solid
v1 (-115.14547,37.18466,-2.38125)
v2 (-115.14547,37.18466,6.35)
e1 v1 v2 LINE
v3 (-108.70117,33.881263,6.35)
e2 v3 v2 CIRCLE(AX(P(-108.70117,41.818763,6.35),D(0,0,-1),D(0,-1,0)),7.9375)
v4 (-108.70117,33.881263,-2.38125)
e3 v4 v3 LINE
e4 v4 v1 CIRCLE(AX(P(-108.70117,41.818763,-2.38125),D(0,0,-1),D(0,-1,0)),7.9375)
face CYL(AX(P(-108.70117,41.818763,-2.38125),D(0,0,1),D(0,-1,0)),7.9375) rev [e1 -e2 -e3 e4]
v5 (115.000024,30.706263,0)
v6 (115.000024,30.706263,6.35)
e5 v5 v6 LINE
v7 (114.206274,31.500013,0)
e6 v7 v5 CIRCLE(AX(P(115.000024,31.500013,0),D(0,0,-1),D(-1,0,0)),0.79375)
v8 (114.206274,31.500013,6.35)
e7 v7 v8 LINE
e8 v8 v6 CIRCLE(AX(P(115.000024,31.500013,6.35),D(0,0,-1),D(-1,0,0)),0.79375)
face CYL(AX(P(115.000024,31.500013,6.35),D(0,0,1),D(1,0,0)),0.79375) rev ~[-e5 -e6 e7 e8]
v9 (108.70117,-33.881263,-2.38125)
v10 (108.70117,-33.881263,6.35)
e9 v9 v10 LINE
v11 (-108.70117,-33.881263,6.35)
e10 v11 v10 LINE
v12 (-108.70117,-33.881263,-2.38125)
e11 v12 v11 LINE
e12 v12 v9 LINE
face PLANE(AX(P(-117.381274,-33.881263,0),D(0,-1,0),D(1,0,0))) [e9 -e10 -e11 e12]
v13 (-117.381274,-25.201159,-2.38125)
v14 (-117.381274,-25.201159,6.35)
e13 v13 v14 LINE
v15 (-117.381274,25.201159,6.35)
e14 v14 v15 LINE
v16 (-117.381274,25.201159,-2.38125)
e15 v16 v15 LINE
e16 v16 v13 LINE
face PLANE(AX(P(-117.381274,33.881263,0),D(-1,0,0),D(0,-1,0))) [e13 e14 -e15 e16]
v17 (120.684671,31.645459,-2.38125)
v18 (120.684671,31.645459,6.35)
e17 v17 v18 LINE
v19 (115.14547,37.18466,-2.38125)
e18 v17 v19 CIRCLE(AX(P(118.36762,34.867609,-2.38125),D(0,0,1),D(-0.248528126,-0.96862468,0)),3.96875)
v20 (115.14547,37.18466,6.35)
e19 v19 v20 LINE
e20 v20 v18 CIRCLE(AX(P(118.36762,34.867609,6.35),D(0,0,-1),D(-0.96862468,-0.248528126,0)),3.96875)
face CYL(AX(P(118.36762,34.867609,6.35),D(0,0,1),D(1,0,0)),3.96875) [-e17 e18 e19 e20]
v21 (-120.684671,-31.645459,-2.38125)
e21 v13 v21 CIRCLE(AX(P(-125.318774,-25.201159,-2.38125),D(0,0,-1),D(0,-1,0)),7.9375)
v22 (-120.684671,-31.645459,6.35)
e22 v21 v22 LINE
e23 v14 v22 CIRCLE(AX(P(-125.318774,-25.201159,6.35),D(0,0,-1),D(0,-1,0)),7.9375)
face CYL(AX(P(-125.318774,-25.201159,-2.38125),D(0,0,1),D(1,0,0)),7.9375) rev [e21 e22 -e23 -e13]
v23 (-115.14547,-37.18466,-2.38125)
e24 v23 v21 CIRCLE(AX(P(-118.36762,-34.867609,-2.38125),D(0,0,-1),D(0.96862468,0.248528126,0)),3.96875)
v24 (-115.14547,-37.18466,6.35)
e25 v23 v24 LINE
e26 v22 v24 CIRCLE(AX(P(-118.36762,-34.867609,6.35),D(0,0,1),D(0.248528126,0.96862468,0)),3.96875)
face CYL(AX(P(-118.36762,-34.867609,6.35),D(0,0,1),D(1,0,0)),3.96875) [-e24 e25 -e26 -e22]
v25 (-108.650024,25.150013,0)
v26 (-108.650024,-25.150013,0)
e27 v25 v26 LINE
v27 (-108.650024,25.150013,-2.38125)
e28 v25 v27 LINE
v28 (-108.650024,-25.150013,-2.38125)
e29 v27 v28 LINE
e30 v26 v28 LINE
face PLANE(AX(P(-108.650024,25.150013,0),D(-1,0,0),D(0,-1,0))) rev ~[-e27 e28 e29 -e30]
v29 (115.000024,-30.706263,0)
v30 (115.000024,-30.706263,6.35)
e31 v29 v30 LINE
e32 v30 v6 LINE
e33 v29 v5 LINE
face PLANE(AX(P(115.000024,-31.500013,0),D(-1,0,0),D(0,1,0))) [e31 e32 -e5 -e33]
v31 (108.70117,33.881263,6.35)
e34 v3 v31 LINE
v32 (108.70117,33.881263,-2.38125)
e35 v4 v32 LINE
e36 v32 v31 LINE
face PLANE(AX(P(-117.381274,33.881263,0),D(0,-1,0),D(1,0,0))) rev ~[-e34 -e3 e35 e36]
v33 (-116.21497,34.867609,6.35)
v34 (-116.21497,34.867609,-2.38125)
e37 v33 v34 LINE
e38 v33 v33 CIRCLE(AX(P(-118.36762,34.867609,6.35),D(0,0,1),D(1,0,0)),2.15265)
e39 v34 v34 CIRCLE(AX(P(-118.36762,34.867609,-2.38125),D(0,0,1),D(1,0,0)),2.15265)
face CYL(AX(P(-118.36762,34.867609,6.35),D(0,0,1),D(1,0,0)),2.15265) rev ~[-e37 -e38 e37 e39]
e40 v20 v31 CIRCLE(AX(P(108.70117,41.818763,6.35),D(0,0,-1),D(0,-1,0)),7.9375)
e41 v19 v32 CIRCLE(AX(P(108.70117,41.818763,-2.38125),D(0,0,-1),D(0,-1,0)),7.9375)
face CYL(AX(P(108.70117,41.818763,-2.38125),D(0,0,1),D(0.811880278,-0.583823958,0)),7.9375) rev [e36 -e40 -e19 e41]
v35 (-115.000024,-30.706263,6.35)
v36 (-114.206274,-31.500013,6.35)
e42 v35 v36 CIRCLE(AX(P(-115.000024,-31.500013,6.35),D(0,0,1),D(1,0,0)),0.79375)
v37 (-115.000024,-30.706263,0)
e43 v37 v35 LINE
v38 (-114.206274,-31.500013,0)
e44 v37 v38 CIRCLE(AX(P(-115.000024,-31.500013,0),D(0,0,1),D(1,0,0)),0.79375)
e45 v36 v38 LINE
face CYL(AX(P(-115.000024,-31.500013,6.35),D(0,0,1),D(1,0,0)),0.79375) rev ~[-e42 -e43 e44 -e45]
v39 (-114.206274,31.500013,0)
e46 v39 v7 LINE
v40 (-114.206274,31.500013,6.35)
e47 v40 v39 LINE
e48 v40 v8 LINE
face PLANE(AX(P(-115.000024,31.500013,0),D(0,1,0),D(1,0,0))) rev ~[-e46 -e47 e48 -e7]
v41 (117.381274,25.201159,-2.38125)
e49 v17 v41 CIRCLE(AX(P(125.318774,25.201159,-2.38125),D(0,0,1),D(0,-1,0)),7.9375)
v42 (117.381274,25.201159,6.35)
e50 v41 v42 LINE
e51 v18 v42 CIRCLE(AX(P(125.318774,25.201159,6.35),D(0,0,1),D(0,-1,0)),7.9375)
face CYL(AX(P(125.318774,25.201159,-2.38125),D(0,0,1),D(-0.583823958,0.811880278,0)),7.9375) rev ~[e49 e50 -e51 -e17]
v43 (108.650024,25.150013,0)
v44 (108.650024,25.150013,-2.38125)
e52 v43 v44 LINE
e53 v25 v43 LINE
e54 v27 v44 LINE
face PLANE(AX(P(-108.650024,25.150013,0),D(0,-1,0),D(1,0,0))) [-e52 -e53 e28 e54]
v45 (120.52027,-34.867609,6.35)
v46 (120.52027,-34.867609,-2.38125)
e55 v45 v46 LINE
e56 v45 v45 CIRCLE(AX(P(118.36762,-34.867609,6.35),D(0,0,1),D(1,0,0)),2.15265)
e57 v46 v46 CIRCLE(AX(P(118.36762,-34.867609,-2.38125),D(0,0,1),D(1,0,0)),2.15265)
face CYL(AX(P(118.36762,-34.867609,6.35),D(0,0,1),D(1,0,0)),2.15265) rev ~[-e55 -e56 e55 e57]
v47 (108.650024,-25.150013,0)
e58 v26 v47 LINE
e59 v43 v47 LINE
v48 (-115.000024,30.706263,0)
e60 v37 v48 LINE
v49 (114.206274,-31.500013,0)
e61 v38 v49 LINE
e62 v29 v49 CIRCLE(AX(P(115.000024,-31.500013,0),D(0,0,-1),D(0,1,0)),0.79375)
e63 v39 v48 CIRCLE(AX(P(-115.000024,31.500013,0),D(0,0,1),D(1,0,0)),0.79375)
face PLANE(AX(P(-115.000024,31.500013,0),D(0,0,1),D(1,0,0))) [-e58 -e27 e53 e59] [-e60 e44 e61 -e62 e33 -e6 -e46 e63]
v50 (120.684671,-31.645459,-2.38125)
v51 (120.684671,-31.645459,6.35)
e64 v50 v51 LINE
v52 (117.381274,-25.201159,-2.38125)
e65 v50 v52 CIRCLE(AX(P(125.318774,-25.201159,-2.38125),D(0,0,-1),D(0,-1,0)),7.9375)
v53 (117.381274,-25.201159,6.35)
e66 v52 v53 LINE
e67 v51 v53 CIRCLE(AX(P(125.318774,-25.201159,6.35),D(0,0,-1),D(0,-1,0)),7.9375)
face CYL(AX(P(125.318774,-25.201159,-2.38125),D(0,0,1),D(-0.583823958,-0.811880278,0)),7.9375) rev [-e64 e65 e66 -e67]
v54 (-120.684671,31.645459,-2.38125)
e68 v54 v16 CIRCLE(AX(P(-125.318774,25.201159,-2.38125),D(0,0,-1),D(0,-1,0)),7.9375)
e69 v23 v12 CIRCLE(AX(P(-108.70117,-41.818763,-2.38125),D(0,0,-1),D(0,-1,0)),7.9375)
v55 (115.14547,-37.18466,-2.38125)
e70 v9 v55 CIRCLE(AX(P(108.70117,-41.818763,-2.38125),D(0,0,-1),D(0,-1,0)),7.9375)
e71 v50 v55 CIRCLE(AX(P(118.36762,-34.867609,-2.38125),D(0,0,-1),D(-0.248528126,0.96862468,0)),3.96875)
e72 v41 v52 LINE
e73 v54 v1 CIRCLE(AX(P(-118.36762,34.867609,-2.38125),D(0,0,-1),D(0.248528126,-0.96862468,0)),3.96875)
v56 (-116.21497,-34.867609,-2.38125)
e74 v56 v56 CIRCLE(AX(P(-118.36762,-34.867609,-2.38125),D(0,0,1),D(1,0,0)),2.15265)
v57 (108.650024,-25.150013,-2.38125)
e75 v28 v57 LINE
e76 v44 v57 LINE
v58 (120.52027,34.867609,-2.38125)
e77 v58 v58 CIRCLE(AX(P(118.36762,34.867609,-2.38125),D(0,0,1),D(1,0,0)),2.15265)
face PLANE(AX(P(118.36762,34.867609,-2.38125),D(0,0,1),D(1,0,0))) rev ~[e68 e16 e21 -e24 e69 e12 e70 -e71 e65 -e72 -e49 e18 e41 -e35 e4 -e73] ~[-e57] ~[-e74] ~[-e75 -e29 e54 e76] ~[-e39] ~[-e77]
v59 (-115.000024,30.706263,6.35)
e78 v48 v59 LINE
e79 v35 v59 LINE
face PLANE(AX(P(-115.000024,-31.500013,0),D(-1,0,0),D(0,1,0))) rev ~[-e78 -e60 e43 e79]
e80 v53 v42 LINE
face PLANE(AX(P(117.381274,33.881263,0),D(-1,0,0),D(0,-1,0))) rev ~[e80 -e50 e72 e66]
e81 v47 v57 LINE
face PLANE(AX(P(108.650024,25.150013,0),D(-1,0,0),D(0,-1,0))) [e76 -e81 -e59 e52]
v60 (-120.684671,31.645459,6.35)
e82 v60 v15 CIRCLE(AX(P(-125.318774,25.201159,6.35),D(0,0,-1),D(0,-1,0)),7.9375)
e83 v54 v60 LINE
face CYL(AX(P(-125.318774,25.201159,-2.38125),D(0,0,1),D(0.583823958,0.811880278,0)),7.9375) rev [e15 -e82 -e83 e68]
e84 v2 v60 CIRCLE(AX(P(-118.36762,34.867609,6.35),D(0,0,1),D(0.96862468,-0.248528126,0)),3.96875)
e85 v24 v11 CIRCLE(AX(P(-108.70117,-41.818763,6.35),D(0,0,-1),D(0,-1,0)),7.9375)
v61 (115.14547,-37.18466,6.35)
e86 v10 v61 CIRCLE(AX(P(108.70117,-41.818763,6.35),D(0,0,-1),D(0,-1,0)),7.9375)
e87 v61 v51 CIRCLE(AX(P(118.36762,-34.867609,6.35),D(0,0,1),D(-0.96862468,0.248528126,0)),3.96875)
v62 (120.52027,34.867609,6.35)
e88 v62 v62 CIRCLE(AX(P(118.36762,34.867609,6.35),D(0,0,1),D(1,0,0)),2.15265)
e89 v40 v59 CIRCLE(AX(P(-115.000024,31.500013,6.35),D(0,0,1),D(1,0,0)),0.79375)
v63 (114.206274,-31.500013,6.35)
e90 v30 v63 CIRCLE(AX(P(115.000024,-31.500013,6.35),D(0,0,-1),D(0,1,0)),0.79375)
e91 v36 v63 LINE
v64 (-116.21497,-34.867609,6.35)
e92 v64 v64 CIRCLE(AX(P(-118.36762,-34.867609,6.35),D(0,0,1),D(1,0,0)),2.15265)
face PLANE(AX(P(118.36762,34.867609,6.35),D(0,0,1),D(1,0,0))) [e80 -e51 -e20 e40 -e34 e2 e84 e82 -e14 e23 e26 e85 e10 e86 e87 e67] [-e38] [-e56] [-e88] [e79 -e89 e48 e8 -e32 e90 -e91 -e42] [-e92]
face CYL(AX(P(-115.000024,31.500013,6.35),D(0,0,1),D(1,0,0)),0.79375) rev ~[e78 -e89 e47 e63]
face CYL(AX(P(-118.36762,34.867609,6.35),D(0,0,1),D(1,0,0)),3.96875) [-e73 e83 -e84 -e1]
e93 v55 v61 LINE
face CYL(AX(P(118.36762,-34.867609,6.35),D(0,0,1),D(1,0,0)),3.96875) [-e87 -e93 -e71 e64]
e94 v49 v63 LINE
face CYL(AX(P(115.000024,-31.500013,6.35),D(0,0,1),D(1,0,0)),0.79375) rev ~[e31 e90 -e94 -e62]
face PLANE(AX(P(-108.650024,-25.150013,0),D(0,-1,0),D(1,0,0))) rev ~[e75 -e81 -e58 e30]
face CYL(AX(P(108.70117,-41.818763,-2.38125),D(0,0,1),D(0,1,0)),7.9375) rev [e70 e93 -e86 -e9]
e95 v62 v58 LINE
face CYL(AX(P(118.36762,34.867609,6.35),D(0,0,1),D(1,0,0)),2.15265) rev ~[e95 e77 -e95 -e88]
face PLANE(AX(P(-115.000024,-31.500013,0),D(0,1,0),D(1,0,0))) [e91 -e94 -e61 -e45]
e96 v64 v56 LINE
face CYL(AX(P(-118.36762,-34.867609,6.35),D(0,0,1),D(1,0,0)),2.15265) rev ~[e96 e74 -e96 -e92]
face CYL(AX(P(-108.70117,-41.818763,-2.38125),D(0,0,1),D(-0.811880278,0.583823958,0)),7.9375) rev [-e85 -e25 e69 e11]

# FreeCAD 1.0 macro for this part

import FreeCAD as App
import Part
import Sketcher
Q = App.Units.Quantity


def edges_at(feature, points):
    """Names of the edges that pass closest to the given points."""
    edges = feature.Shape.Edges
    near = lambda p: min(range(len(edges)), key=lambda i: edges[i].distToShape(Part.Vertex(*p))[0])
    return sorted({f"Edge{near(p) + 1}" for p in points})

doc = App.newDocument("Part")
body = doc.addObject("PartDesign::Body", "Body")

# Sketch on XY plane
sketch1 = body.newObject("Sketcher::SketchObject", "Sketch")
sketch1.AttachmentSupport = (doc.getObject("XY_Plane"), [""])
sketch1.MapMode = "FlatFace"
sketch1.addGeometry([
    Part.LineSegment(App.Vector(-117, 34, 0), App.Vector(-117, -34, 0)),  # 0
    Part.LineSegment(App.Vector(-117, -34, 0), App.Vector(117, -34, 0)),  # 1
    Part.LineSegment(App.Vector(117, -34, 0), App.Vector(117, 34, 0)),  # 2
    Part.LineSegment(App.Vector(117, 34, 0), App.Vector(-117, 34, 0)),  # 3
    Part.LineSegment(App.Vector(115, -32, 0), App.Vector(-115, -32, 0)),  # 4
    Part.LineSegment(App.Vector(-115, -32, 0), App.Vector(-115, 32, 0)),  # 5
    Part.LineSegment(App.Vector(-115, 32, 0), App.Vector(115, 32, 0)),  # 6
    Part.LineSegment(App.Vector(115, 32, 0), App.Vector(115, -32, 0)),  # 7
], False)
sketch1.addConstraint([
    Sketcher.Constraint("Coincident", 0, 2, 1, 1),
    Sketcher.Constraint("Coincident", 1, 2, 2, 1),
    Sketcher.Constraint("Coincident", 2, 2, 3, 1),
    Sketcher.Constraint("Coincident", 3, 2, 0, 1),
    Sketcher.Constraint("Coincident", 4, 2, 5, 1),
    Sketcher.Constraint("Coincident", 5, 2, 6, 1),
    Sketcher.Constraint("Coincident", 6, 2, 7, 1),
    Sketcher.Constraint("Coincident", 7, 2, 4, 1),
    Sketcher.Constraint("Vertical", 0),
    Sketcher.Constraint("Horizontal", 1),
    Sketcher.Constraint("Vertical", 2),
    Sketcher.Constraint("Horizontal", 3),
    Sketcher.Constraint("Horizontal", 4),
    Sketcher.Constraint("Vertical", 5),
    Sketcher.Constraint("Horizontal", 6),
    Sketcher.Constraint("Vertical", 7),
    Sketcher.Constraint("Symmetric", 0, 2, 2, 2, -1, 1),
    Sketcher.Constraint("Symmetric", 4, 2, 6, 2, -1, 1),
    Sketcher.Constraint("DistanceX", 0, 2, 4, 2, Q("0.09375 in")),
    Sketcher.Constraint("DistanceY", 0, 2, 4, 2, Q("0.09375 in")),
    Sketcher.Constraint("DistanceX", 1, 1, 1, 2, Q("234.762548 mm")),
    Sketcher.Constraint("DistanceY", 0, 2, 0, 1, Q("67.762526 mm")),
])
pad1 = body.newObject("PartDesign::Pad", "Pad")
pad1.Profile = sketch1
pad1.Length = Q("0.25 in")

# Sketch on XY plane
sketch2 = body.newObject("Sketcher::SketchObject", "Sketch001")
sketch2.AttachmentSupport = (doc.getObject("XY_Plane"), [""])
sketch2.MapMode = "FlatFace"
sketch2.addGeometry([
    Part.LineSegment(App.Vector(-117, -34, 0), App.Vector(-117, 34, 0)),  # 0
    Part.LineSegment(App.Vector(-117, 34, 0), App.Vector(117, 34, 0)),  # 1
    Part.LineSegment(App.Vector(117, 34, 0), App.Vector(117, -34, 0)),  # 2
    Part.LineSegment(App.Vector(117, -34, 0), App.Vector(-117, -34, 0)),  # 3
    Part.LineSegment(App.Vector(109, 25, 0), App.Vector(-109, 25, 0)),  # 4
    Part.LineSegment(App.Vector(-109, 25, 0), App.Vector(-109, -25, 0)),  # 5
    Part.LineSegment(App.Vector(-109, -25, 0), App.Vector(109, -25, 0)),  # 6
    Part.LineSegment(App.Vector(109, -25, 0), App.Vector(109, 25, 0)),  # 7
], False)
sketch2.addConstraint([
    Sketcher.Constraint("Coincident", 0, 2, 1, 1),
    Sketcher.Constraint("Coincident", 1, 2, 2, 1),
    Sketcher.Constraint("Coincident", 2, 2, 3, 1),
    Sketcher.Constraint("Coincident", 3, 2, 0, 1),
    Sketcher.Constraint("Coincident", 4, 2, 5, 1),
    Sketcher.Constraint("Coincident", 5, 2, 6, 1),
    Sketcher.Constraint("Coincident", 6, 2, 7, 1),
    Sketcher.Constraint("Coincident", 7, 2, 4, 1),
    Sketcher.Constraint("Vertical", 0),
    Sketcher.Constraint("Horizontal", 1),
    Sketcher.Constraint("Vertical", 2),
    Sketcher.Constraint("Horizontal", 3),
    Sketcher.Constraint("Horizontal", 4),
    Sketcher.Constraint("Vertical", 5),
    Sketcher.Constraint("Horizontal", 6),
    Sketcher.Constraint("Vertical", 7),
    Sketcher.Constraint("Symmetric", 0, 2, 2, 2, -1, 1),
    Sketcher.Constraint("Symmetric", 4, 2, 6, 2, -1, 1),
    Sketcher.Constraint("DistanceX", 0, 2, 4, 2, Q("0.34375 in")),
    Sketcher.Constraint("DistanceY", 4, 2, 0, 2, Q("0.34375 in")),
    Sketcher.Constraint("DistanceX", 1, 1, 1, 2, Q("234.762548 mm")),
    Sketcher.Constraint("DistanceY", 0, 1, 0, 2, Q("67.762526 mm")),
])
pad2 = body.newObject("PartDesign::Pad", "Pad001")
pad2.Profile = sketch2
pad2.Length = Q("0.09375 in")
pad2.Reversed = True

# Sketch on XY plane
sketch3 = body.newObject("Sketcher::SketchObject", "Sketch002")
sketch3.AttachmentSupport = (doc.getObject("XY_Plane"), [""])
sketch3.MapMode = "FlatFace"
sketch3.AttachmentOffset = App.Placement(App.Vector(0, 0, 0.25 * 25.4), App.Rotation())
sketch3.addGeometry([
    Part.Circle(App.Vector(118.4, 34.9, 0), App.Vector(0, 0, 1), 4),
    Part.Circle(App.Vector(118.4, -34.9, 0), App.Vector(0, 0, 1), 4),
    Part.Circle(App.Vector(-118.4, -34.9, 0), App.Vector(0, 0, 1), 4),
    Part.Circle(App.Vector(-118.4, 34.9, 0), App.Vector(0, 0, 1), 4),
], False)
sketch3.addConstraint([
    Sketcher.Constraint("Equal", 0, 1),
    Sketcher.Constraint("Equal", 1, 2),
    Sketcher.Constraint("Equal", 2, 3),
    Sketcher.Constraint("Symmetric", 0, 3, 2, 3, -1, 1),
    Sketcher.Constraint("Symmetric", 1, 3, 3, 3, -1, 1),
    Sketcher.Constraint("Symmetric", 1, 3, 2, 3, -2),
    Sketcher.Constraint("Diameter", 0, Q("0.3125 in")),
    Sketcher.Constraint("DistanceX", -1, 1, 0, 3, Q("118.36762 mm")),
    Sketcher.Constraint("DistanceY", -1, 1, 0, 3, Q("34.867609 mm")),
])
pad3 = body.newObject("PartDesign::Pad", "Pad002")
pad3.Profile = sketch3
pad3.Length = Q("0.34375 in")
pad3.Reversed = True
doc.recompute()

fillet = body.newObject("PartDesign::Fillet", "Fillet")
fillet.Base = (pad3, edges_at(pad3, [
    (114.523, 33.881, 1.984),
    (117.381, 31.023, 1.984),
    (117.381, -31.023, 1.984),
    (114.523, -33.881, 1.984),
    (-117.381, -31.023, 1.984),
    (-114.523, -33.881, 1.984),
    (-114.523, 33.881, 1.984),
    (-117.381, 31.023, 1.984),
]))
fillet.Radius = Q("0.3125 in")

# Sketch on XY plane
sketch4 = body.newObject("Sketcher::SketchObject", "Sketch003")
sketch4.AttachmentSupport = (doc.getObject("XY_Plane"), [""])
sketch4.MapMode = "FlatFace"
sketch4.AttachmentOffset = App.Placement(App.Vector(0, 0, 0.25 * 25.4), App.Rotation())
sketch4.addGeometry([
    Part.Circle(App.Vector(118.4, 34.9, 0), App.Vector(0, 0, 1), 2.2),
    Part.Circle(App.Vector(118.4, -34.9, 0), App.Vector(0, 0, 1), 2.2),
    Part.Circle(App.Vector(-118.4, 34.9, 0), App.Vector(0, 0, 1), 2.2),
    Part.Circle(App.Vector(-118.4, -34.9, 0), App.Vector(0, 0, 1), 2.2),
], False)
sketch4.addConstraint([
    Sketcher.Constraint("Equal", 0, 1),
    Sketcher.Constraint("Equal", 1, 2),
    Sketcher.Constraint("Equal", 2, 3),
    Sketcher.Constraint("Symmetric", 1, 3, 2, 3, -1, 1),
    Sketcher.Constraint("Symmetric", 0, 3, 3, 3, -1, 1),
    Sketcher.Constraint("Symmetric", 0, 3, 2, 3, -2),
    Sketcher.Constraint("Diameter", 0, Q("0.1695 in")),
    Sketcher.Constraint("DistanceX", -1, 1, 0, 3, Q("118.36762 mm")),
    Sketcher.Constraint("DistanceY", -1, 1, 0, 3, Q("34.867609 mm")),
])
pocket1 = body.newObject("PartDesign::Pocket", "Pocket")
pocket1.Profile = sketch4
pocket1.Type = "ThroughAll"

# Sketch on XY plane
sketch5 = body.newObject("Sketcher::SketchObject", "Sketch004")
sketch5.AttachmentSupport = (doc.getObject("XY_Plane"), [""])
sketch5.MapMode = "FlatFace"
sketch5.AttachmentOffset = App.Placement(App.Vector(0, 0, 0.25 * 25.4), App.Rotation())
sketch5.addGeometry([
    Part.Circle(App.Vector(-115, 31.5, 0), App.Vector(0, 0, 1), 0.8),
    Part.Circle(App.Vector(-115, -31.5, 0), App.Vector(0, 0, 1), 0.8),
    Part.Circle(App.Vector(115, -31.5, 0), App.Vector(0, 0, 1), 0.8),
    Part.Circle(App.Vector(115, 31.5, 0), App.Vector(0, 0, 1), 0.8),
], False)
sketch5.addConstraint([
    Sketcher.Constraint("Equal", 0, 1),
    Sketcher.Constraint("Equal", 1, 2),
    Sketcher.Constraint("Equal", 2, 3),
    Sketcher.Constraint("Symmetric", 0, 3, 2, 3, -1, 1),
    Sketcher.Constraint("Symmetric", 1, 3, 3, 3, -1, 1),
    Sketcher.Constraint("Symmetric", 1, 3, 2, 3, -2),
    Sketcher.Constraint("Diameter", 0, Q("0.0625 in")),
    Sketcher.Constraint("DistanceX", 1, 3, 2, 3, Q("230.000048 mm")),
    Sketcher.Constraint("DistanceY", -1, 1, 0, 3, Q("31.500013 mm")),
])
pocket2 = body.newObject("PartDesign::Pocket", "Pocket001")
pocket2.Profile = sketch5
pocket2.Length = Q("0.25 in")

doc.recompute()
